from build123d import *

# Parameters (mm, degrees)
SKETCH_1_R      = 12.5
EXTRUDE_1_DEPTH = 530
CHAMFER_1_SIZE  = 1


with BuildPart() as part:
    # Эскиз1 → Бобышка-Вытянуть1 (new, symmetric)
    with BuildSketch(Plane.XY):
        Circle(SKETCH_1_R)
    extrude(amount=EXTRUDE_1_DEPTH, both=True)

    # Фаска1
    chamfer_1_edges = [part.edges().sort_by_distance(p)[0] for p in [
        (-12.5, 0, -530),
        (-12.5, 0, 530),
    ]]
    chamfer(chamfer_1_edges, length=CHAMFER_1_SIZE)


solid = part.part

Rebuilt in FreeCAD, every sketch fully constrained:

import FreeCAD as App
import Part
import Sketcher


def edges_at(feature, points):
    """Names of the edges that pass closest to the given points."""
    edges = feature.Shape.Edges
    near = lambda p: min(range(len(edges)), key=lambda i: edges[i].distToShape(Part.Vertex(*p))[0])
    return sorted({f"Edge{near(p) + 1}" for p in points})

doc = App.newDocument("Part")
body = doc.addObject("PartDesign::Body", "Body")

# Sketch on XY plane
sketch1 = body.newObject("Sketcher::SketchObject", "Sketch")
sketch1.AttachmentSupport = (doc.getObject("XY_Plane"), [""])
sketch1.MapMode = "FlatFace"
sketch1.addGeometry(Part.Circle(App.Vector(0, 0, 0), App.Vector(0, 0, 1), 12.5), False)
sketch1.addConstraint([
    Sketcher.Constraint("Coincident", 0, 3, -1, 1),
    Sketcher.Constraint("Diameter", 0, 25.0),
])
pad1 = body.newObject("PartDesign::Pad", "Pad")
pad1.Profile = sketch1
pad1.Length = 1060
pad1.Midplane = True
doc.recompute()

chamfer = body.newObject("PartDesign::Chamfer", "Chamfer")
chamfer.Base = (pad1, edges_at(pad1, [(-12.5, 0, -530), (-12.5, 0, 530)]))
chamfer.Size = 1

doc.recompute()
